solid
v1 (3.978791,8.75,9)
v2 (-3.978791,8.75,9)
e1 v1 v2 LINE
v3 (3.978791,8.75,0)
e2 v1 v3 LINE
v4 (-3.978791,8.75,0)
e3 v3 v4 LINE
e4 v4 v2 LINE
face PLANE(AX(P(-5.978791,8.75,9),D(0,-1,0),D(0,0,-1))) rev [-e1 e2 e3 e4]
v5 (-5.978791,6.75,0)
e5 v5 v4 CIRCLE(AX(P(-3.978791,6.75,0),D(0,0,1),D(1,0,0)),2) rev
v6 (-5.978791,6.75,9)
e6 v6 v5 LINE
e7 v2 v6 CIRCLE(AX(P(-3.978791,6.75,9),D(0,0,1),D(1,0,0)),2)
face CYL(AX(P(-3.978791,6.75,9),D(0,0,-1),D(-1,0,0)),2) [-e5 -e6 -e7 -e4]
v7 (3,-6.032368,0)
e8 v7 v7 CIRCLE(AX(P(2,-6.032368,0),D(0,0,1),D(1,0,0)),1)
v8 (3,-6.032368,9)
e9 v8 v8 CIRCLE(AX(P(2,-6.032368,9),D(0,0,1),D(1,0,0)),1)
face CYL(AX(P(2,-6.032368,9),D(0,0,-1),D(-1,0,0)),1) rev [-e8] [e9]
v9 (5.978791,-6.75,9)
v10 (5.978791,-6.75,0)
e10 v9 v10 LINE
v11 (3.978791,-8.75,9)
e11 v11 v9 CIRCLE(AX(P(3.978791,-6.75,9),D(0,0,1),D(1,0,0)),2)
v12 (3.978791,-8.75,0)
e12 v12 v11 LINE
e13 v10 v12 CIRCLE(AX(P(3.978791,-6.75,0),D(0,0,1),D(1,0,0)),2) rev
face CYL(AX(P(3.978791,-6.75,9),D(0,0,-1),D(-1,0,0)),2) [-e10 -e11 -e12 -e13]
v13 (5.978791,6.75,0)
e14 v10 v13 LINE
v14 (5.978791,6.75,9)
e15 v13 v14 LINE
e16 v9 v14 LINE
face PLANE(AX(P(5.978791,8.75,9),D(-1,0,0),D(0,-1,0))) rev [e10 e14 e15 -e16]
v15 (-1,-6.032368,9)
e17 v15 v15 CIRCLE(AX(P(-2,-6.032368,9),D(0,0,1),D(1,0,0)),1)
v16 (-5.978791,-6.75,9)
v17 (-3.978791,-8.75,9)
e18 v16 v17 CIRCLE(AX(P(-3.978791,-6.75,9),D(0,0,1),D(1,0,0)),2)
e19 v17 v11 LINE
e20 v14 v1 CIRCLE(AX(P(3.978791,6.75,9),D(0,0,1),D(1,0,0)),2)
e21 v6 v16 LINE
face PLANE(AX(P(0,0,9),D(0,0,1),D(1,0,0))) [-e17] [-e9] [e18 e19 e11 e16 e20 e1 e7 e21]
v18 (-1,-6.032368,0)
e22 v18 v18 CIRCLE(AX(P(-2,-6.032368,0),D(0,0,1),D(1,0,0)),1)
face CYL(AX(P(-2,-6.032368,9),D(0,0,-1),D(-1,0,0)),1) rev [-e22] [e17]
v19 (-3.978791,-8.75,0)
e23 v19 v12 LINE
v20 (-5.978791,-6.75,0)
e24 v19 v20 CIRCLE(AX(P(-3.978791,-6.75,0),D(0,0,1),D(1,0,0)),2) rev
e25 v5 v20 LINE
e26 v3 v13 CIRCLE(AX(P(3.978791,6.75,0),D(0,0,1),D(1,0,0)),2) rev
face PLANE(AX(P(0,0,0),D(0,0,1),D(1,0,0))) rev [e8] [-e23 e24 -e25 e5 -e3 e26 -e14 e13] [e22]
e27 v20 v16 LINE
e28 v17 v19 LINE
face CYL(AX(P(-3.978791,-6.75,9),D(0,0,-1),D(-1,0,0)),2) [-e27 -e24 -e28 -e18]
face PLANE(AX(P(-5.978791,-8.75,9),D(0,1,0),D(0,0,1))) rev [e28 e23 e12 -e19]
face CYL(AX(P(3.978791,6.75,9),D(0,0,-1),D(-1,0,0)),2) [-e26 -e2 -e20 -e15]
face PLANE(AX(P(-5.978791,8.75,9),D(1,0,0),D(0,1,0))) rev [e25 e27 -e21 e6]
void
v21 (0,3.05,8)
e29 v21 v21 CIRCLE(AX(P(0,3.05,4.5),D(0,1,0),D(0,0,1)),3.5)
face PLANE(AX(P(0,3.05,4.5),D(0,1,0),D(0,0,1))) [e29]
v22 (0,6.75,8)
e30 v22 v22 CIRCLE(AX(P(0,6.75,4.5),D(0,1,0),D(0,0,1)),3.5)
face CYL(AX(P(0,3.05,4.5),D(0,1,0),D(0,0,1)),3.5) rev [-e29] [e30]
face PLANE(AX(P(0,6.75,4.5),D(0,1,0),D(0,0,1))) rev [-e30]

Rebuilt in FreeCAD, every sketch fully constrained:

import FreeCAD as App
import Part
import Sketcher


def edges_at(feature, points):
    """Names of the edges that pass closest to the given points."""
    edges = feature.Shape.Edges
    near = lambda p: min(range(len(edges)), key=lambda i: edges[i].distToShape(Part.Vertex(*p))[0])
    return sorted({f"Edge{near(p) + 1}" for p in points})

doc = App.newDocument("Part")
params = doc.addObject("Spreadsheet::Sheet", "Params")
for row, (alias, value) in enumerate([
    ("sketch1_diameter", "2 mm"),
    ("sketch1_height", "17.5 mm"),
    ("pad1_length", "9 mm"),
    ("sketch2_diameter", "7 mm"),
    ("pocket1_length", "3.7 mm"),
    ("fillet_radius", "2 mm"),
], start=1):
    params.set(f"A{row}", alias)
    params.set(f"B{row}", "=" + value)
    params.setAlias(f"B{row}", alias)

body = doc.addObject("PartDesign::Body", "Body")

# Sketch on XY plane
sketch1 = doc.addObject("Sketcher::SketchObject", "Sketch")
body.addObject(sketch1)
sketch1.AttachmentSupport = (doc.XY_Plane, [""])
sketch1.MapMode = "FlatFace"
sketch1.addGeometry([
    Part.LineSegment(App.Vector(-6, 8.8, 0), App.Vector(-6, -8.8, 0)),  # 0
    Part.LineSegment(App.Vector(-6, -8.8, 0), App.Vector(6, -8.8, 0)),  # 1
    Part.LineSegment(App.Vector(6, -8.8, 0), App.Vector(6, 8.8, 0)),  # 2
    Part.LineSegment(App.Vector(6, 8.8, 0), App.Vector(-6, 8.8, 0)),  # 3
    Part.Circle(App.Vector(-2, -6, 0), App.Vector(0, 0, 1), 1),  # 4
    Part.Circle(App.Vector(2, -6, 0), App.Vector(0, 0, 1), 1),  # 5
], False)
sketch1.addConstraint([
    Sketcher.Constraint("Coincident", 0, 2, 1, 1),
    Sketcher.Constraint("Coincident", 1, 2, 2, 1),
    Sketcher.Constraint("Coincident", 2, 2, 3, 1),
    Sketcher.Constraint("Coincident", 3, 2, 0, 1),
    Sketcher.Constraint("Vertical", 0),
    Sketcher.Constraint("Horizontal", 1),
    Sketcher.Constraint("Vertical", 2),
    Sketcher.Constraint("Horizontal", 3),
    Sketcher.Constraint("Equal", 4, 5),
    Sketcher.Constraint("Symmetric", 0, 2, 2, 2, -1, 1),
    Sketcher.Constraint("Symmetric", 4, 3, 5, 3, -2),
    Sketcher.Constraint("Diameter", 4, 2.0),
    Sketcher.Constraint("DistanceY", 0, 2, 0, 1, 17.5),
    Sketcher.Constraint("DistanceX", 4, 3, -1, 1, 2.0),
    Sketcher.Constraint("DistanceX", 1, 1, 1, 2, 11.957581),
    Sketcher.Constraint("DistanceY", 4, 3, -1, 1, 6.032368),
])
sketch1.setExpression("Constraints[11]", "Params.sketch1_diameter")
sketch1.setExpression("Constraints[12]", "Params.sketch1_height")
pad1 = doc.addObject("PartDesign::Pad", "Pad")
body.addObject(pad1)
pad1.Profile = sketch1
pad1.setExpression("Length", "Params.pad1_length")

# Sketch on XZ plane
sketch2 = doc.addObject("Sketcher::SketchObject", "Sketch001")
body.addObject(sketch2)
sketch2.AttachmentSupport = (doc.XZ_Plane, [""])
sketch2.MapMode = "FlatFace"
sketch2.AttachmentOffset = App.Placement(App.Vector(0, 0, -6.75), App.Rotation())
sketch2.addGeometry(Part.Circle(App.Vector(0, 4.5, 0), App.Vector(0, 0, 1), 3.5), False)
sketch2.addConstraint([
    Sketcher.Constraint("PointOnObject", 0, 3, -2),
    Sketcher.Constraint("Diameter", 0, 7.0),
    Sketcher.Constraint("DistanceY", -1, 1, 0, 3, 4.5),
])
sketch2.setExpression("Constraints[1]", "Params.sketch2_diameter")
pocket1 = doc.addObject("PartDesign::Pocket", "Pocket")
body.addObject(pocket1)
pocket1.Profile = sketch2
pocket1.setExpression("Length", "Params.pocket1_length")
pocket1.Reversed = True
doc.recompute()

fillet = doc.addObject("PartDesign::Fillet", "Fillet")
body.addObject(fillet)
fillet.Base = (pocket1, edges_at(pocket1, [
    (5.979, -8.75, 4.5),
    (-5.979, -8.75, 4.5),
    (-5.979, 8.75, 4.5),
    (5.979, 8.75, 4.5),
]))
fillet.setExpression("Radius", "Params.fillet_radius")

doc.recompute()
